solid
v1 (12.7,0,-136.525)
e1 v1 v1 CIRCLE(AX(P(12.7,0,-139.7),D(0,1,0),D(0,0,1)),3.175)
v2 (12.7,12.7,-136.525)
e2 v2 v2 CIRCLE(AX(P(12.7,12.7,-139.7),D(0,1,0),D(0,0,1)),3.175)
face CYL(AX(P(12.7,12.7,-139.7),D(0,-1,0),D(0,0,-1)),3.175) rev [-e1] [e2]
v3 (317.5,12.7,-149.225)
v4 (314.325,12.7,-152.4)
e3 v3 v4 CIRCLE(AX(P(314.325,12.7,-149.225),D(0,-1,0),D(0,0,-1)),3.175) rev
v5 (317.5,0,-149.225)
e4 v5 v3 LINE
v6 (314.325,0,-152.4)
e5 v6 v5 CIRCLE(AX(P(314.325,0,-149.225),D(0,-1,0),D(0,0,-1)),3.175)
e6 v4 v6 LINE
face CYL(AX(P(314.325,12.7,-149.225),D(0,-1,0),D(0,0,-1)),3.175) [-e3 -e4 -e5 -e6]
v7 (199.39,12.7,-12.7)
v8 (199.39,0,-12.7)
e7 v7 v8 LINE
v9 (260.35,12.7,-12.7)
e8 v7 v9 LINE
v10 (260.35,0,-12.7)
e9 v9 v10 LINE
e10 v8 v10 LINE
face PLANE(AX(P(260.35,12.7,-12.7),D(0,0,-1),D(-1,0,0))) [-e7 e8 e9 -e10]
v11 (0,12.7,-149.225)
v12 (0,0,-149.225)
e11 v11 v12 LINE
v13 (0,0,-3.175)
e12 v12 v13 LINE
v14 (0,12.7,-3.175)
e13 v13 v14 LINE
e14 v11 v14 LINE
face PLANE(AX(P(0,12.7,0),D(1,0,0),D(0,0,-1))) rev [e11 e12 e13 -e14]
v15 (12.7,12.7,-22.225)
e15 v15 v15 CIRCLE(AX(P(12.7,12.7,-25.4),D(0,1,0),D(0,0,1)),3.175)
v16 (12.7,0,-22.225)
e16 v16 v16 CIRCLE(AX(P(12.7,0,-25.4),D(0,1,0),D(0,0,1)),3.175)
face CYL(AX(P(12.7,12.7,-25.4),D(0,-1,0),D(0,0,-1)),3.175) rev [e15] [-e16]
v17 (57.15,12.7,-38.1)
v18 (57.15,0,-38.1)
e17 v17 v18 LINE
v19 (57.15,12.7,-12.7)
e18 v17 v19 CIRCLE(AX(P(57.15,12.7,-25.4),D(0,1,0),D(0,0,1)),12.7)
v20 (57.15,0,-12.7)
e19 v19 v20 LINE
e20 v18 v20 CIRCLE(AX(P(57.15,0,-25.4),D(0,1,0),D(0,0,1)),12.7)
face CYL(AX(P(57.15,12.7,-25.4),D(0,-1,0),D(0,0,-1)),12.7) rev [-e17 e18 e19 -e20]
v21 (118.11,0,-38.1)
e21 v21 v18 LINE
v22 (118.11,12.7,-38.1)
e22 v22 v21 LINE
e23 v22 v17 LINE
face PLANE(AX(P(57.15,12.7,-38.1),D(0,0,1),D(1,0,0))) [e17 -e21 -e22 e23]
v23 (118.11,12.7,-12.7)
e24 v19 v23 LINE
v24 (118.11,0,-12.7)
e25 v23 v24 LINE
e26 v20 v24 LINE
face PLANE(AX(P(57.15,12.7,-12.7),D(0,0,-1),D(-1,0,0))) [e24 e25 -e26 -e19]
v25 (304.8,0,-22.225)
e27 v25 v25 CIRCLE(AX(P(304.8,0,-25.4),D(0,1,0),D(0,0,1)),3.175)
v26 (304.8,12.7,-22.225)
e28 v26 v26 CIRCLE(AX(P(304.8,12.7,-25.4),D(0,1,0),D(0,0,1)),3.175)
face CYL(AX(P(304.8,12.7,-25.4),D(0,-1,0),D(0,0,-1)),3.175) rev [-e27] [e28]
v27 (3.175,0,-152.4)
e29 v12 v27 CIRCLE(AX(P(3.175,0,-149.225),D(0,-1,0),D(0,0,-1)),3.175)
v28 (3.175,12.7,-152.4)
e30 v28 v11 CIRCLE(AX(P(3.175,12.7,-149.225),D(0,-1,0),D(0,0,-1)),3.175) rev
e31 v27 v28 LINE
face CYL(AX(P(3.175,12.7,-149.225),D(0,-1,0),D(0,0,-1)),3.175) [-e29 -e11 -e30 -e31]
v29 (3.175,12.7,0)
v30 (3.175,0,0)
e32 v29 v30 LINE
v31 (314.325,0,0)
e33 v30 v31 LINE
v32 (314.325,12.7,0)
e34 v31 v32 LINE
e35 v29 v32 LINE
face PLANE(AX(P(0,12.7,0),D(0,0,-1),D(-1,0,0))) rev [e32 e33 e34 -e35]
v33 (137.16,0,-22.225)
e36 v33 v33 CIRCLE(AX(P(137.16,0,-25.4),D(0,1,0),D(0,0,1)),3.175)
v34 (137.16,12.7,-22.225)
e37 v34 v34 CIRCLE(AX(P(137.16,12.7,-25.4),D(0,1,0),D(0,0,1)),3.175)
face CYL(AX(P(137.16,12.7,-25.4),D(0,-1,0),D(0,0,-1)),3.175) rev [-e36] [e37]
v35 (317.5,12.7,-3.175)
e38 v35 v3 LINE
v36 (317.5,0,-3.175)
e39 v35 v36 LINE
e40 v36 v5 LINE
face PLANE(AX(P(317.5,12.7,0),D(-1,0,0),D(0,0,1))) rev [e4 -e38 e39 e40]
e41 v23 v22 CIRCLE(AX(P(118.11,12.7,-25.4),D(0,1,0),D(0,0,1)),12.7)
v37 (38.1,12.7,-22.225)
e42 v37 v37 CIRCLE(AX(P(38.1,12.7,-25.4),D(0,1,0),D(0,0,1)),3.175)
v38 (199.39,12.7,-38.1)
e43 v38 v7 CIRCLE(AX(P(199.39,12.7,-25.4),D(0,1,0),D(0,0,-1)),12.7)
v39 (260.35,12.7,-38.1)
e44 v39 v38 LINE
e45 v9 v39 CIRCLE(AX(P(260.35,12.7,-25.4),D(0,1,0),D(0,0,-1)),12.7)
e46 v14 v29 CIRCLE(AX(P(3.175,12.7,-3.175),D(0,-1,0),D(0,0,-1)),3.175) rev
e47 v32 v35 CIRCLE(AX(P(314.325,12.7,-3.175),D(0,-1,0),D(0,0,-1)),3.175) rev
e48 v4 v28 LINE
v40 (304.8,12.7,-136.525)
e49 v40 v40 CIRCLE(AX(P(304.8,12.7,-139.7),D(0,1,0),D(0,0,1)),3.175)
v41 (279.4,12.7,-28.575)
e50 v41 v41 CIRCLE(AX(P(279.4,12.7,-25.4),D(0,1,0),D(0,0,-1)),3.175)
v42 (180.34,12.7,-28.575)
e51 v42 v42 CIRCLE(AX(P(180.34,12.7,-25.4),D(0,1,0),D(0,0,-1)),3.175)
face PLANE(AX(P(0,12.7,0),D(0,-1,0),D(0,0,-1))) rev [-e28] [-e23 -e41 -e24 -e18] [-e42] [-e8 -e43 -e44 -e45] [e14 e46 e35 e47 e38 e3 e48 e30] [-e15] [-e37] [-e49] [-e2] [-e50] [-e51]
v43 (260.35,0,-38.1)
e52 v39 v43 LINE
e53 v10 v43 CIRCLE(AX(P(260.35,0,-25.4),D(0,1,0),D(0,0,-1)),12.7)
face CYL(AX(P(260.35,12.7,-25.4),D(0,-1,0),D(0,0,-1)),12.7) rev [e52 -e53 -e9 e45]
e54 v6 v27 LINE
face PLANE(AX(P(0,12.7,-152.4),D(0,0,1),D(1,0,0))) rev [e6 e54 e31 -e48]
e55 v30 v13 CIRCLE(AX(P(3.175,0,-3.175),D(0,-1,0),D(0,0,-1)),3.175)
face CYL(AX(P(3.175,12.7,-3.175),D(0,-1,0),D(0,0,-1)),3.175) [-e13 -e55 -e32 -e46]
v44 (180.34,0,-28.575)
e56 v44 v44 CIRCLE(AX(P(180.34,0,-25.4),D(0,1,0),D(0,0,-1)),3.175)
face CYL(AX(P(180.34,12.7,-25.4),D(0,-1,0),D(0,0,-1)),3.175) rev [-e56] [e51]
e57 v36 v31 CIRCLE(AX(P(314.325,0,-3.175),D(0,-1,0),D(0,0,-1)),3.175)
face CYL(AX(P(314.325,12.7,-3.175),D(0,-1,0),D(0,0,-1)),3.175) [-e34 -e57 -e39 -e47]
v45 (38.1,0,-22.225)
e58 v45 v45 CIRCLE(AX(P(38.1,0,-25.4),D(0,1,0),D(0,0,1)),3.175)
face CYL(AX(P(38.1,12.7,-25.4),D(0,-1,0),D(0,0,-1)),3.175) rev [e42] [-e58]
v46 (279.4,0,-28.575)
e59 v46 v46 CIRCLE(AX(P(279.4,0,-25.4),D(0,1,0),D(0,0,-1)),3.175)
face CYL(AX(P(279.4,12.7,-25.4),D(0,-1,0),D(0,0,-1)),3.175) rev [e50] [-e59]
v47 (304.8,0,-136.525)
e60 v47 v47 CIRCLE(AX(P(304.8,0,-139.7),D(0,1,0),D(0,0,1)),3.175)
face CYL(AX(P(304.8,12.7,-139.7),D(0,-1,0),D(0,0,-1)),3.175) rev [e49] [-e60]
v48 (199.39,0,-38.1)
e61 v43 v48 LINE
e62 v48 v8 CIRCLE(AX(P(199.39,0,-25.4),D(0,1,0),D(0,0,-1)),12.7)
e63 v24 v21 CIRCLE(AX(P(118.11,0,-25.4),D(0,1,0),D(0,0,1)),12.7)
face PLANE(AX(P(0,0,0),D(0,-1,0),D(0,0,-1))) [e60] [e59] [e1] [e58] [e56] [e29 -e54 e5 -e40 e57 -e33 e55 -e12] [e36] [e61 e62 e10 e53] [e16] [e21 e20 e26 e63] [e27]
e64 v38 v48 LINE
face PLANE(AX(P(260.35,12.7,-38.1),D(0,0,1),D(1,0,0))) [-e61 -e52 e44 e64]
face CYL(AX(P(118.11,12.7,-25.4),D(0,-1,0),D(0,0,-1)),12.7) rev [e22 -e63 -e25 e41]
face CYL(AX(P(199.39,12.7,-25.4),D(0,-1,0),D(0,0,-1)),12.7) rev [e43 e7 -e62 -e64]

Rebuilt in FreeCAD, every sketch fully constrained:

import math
import FreeCAD as App
import Part
import Sketcher
Q = App.Units.Quantity


def edges_at(feature, points):
    """Names of the edges that pass closest to the given points."""
    edges = feature.Shape.Edges
    near = lambda p: min(range(len(edges)), key=lambda i: edges[i].distToShape(Part.Vertex(*p))[0])
    return sorted({f"Edge{near(p) + 1}" for p in points})


def add_polygon(sketch, points):
    """Adds a closed chain of lines whose ends are joined by coincident constraints."""
    first, n = sketch.GeometryCount, len(points)
    for a, b in zip(points, points[1:] + points[:1]):
        sketch.addGeometry(Part.LineSegment(App.Vector(*a, 0), App.Vector(*b, 0)), False)
    for i in range(n):
        sketch.addConstraint(Sketcher.Constraint("Coincident", first + i, 2, first + (i + 1) % n, 1))

doc = App.newDocument("Part")
body = doc.addObject("PartDesign::Body", "Body")

# Sketch on XZ plane
sketch1 = body.newObject("Sketcher::SketchObject", "Sketch")
sketch1.AttachmentSupport = (doc.getObject("XZ_Plane"), [""])
sketch1.MapMode = "FlatFace"
add_polygon(sketch1, [(0, -152.4), (0, 0), (317.5, 0), (317.5, -152.4)])  # lines 0-3
sketch1.addGeometry(Part.Circle(App.Vector(12.7, -25.4, 0), App.Vector(0, 0, 1), 3.2), False)  # 4
sketch1.addGeometry(Part.Circle(App.Vector(38.1, -25.4, 0), App.Vector(0, 0, 1), 3.2), False)  # 5
sketch1.addGeometry(Part.ArcOfCircle(Part.Circle(App.Vector(57.1, -25.4, 0), App.Vector(0, 0, 1), 12.7), math.radians(90), math.radians(270)), False)  # 6
sketch1.addGeometry(Part.LineSegment(App.Vector(57.1, -38.1, 0), App.Vector(118.1, -38.1, 0)), False)  # 7
sketch1.addGeometry(Part.ArcOfCircle(Part.Circle(App.Vector(118.1, -25.4, 0), App.Vector(0, 0, 1), 12.7), math.radians(-90), math.radians(90)), False)  # 8
sketch1.addGeometry(Part.LineSegment(App.Vector(118.1, -12.7, 0), App.Vector(57.1, -12.7, 0)), False)  # 9
sketch1.addGeometry(Part.Circle(App.Vector(137.2, -25.4, 0), App.Vector(0, 0, 1), 3.2), False)  # 10
sketch1.addGeometry(Part.Circle(App.Vector(180.3, -25.4, 0), App.Vector(0, 0, 1), 3.2), False)  # 11
sketch1.addGeometry(Part.LineSegment(App.Vector(199.4, -38.1, 0), App.Vector(260.4, -38.1, 0)), False)  # 12
sketch1.addGeometry(Part.ArcOfCircle(Part.Circle(App.Vector(260.4, -25.4, 0), App.Vector(0, 0, 1), 12.7), math.radians(-90), math.radians(90)), False)  # 13
sketch1.addGeometry(Part.LineSegment(App.Vector(260.4, -12.7, 0), App.Vector(199.4, -12.7, 0)), False)  # 14
sketch1.addGeometry(Part.ArcOfCircle(Part.Circle(App.Vector(199.4, -25.4, 0), App.Vector(0, 0, 1), 12.7), math.radians(90), math.radians(270)), False)  # 15
sketch1.addGeometry(Part.Circle(App.Vector(279.4, -25.4, 0), App.Vector(0, 0, 1), 3.2), False)  # 16
sketch1.addGeometry(Part.Circle(App.Vector(304.8, -25.4, 0), App.Vector(0, 0, 1), 3.2), False)  # 17
sketch1.addGeometry(Part.Circle(App.Vector(12.7, -139.7, 0), App.Vector(0, 0, 1), 3.2), False)  # 18
sketch1.addGeometry(Part.Circle(App.Vector(304.8, -139.7, 0), App.Vector(0, 0, 1), 3.2), False)  # 19
sketch1.addConstraint([
    Sketcher.Constraint("Tangent", 6, 2, 7, 1),
    Sketcher.Constraint("Tangent", 7, 2, 8, 1),
    Sketcher.Constraint("Tangent", 8, 2, 9, 1),
    Sketcher.Constraint("Tangent", 9, 2, 6, 1),
    Sketcher.Constraint("Tangent", 12, 2, 13, 1),
    Sketcher.Constraint("Tangent", 13, 2, 14, 1),
    Sketcher.Constraint("Tangent", 14, 2, 15, 1),
    Sketcher.Constraint("Tangent", 15, 2, 12, 1),
    Sketcher.Constraint("Vertical", 0),
    Sketcher.Constraint("Horizontal", 1),
    Sketcher.Constraint("Vertical", 2),
    Sketcher.Constraint("Horizontal", 3),
    Sketcher.Constraint("Horizontal", 7),
    Sketcher.Constraint("Horizontal", 9),
    Sketcher.Constraint("Horizontal", 12),
    Sketcher.Constraint("Horizontal", 14),
    Sketcher.Constraint("Coincident", 0, 2, -1, 1),
    Sketcher.Constraint("Equal", 4, 5),
    Sketcher.Constraint("Equal", 5, 10),
    Sketcher.Constraint("Equal", 10, 11),
    Sketcher.Constraint("Equal", 8, 13),
    Sketcher.Constraint("Equal", 11, 16),
    Sketcher.Constraint("Equal", 16, 17),
    Sketcher.Constraint("Equal", 17, 18),
    Sketcher.Constraint("Equal", 18, 19),
    Sketcher.Constraint("Horizontal", 4, 3, 5, 3),
    Sketcher.Constraint("Horizontal", 5, 3, 6, 3),
    Sketcher.Constraint("Horizontal", 8, 3, 10, 3),
    Sketcher.Constraint("Horizontal", 10, 3, 11, 3),
    Sketcher.Constraint("Horizontal", 11, 3, 13, 3),
    Sketcher.Constraint("Horizontal", 15, 3, 16, 3),
    Sketcher.Constraint("Horizontal", 16, 3, 17, 3),
    Sketcher.Constraint("Horizontal", 18, 3, 19, 3),
    Sketcher.Constraint("Vertical", 4, 3, 18, 3),
    Sketcher.Constraint("Vertical", 17, 3, 19, 3),
    Sketcher.Constraint("Equal", 9, 12),
    Sketcher.Constraint("Radius", 6, Q("0.5 in")),
    Sketcher.Constraint("Diameter", 4, Q("0.25 in")),
    Sketcher.Constraint("DistanceY", 0, 1, 0, 2, Q("6 in")),
    Sketcher.Constraint("DistanceX", 1, 1, 1, 2, Q("12.5 in")),
    Sketcher.Constraint("DistanceX", 7, 1, 7, 2, Q("2.4 in")),
    Sketcher.Constraint("DistanceY", 4, 3, -1, 1, Q("1 in")),
    Sketcher.Constraint("DistanceX", -1, 1, 16, 3, Q("11 in")),
    Sketcher.Constraint("DistanceX", -1, 1, 17, 3, Q("12 in")),
    Sketcher.Constraint("DistanceX", 4, 3, 5, 3, Q("1 in")),
    Sketcher.Constraint("DistanceX", 6, 3, 13, 3, Q("8 in")),
    Sketcher.Constraint("DistanceX", -1, 1, 4, 3, Q("0.5 in")),
    Sketcher.Constraint("DistanceX", -1, 1, 10, 3, Q("5.4 in")),
    Sketcher.Constraint("DistanceX", -1, 1, 11, 3, Q("7.1 in")),
    Sketcher.Constraint("DistanceY", 18, 3, -1, 1, Q("5.5 in")),
    Sketcher.Constraint("DistanceX", -1, 1, 6, 3, Q("2.25 in")),
])
pad1 = body.newObject("PartDesign::Pad", "Pad")
pad1.Profile = sketch1
pad1.Length = Q("0.5 in")
pad1.Reversed = True
doc.recompute()

fillet = body.newObject("PartDesign::Fillet", "Fillet")
fillet.Base = (pad1, edges_at(pad1, [
    (0, 6.35, -152.4),
    (317.5, 6.35, -152.4),
    (317.5, 6.35, 0),
    (0, 6.35, 0),
]))
fillet.Radius = Q("0.125 in")

doc.recompute()
